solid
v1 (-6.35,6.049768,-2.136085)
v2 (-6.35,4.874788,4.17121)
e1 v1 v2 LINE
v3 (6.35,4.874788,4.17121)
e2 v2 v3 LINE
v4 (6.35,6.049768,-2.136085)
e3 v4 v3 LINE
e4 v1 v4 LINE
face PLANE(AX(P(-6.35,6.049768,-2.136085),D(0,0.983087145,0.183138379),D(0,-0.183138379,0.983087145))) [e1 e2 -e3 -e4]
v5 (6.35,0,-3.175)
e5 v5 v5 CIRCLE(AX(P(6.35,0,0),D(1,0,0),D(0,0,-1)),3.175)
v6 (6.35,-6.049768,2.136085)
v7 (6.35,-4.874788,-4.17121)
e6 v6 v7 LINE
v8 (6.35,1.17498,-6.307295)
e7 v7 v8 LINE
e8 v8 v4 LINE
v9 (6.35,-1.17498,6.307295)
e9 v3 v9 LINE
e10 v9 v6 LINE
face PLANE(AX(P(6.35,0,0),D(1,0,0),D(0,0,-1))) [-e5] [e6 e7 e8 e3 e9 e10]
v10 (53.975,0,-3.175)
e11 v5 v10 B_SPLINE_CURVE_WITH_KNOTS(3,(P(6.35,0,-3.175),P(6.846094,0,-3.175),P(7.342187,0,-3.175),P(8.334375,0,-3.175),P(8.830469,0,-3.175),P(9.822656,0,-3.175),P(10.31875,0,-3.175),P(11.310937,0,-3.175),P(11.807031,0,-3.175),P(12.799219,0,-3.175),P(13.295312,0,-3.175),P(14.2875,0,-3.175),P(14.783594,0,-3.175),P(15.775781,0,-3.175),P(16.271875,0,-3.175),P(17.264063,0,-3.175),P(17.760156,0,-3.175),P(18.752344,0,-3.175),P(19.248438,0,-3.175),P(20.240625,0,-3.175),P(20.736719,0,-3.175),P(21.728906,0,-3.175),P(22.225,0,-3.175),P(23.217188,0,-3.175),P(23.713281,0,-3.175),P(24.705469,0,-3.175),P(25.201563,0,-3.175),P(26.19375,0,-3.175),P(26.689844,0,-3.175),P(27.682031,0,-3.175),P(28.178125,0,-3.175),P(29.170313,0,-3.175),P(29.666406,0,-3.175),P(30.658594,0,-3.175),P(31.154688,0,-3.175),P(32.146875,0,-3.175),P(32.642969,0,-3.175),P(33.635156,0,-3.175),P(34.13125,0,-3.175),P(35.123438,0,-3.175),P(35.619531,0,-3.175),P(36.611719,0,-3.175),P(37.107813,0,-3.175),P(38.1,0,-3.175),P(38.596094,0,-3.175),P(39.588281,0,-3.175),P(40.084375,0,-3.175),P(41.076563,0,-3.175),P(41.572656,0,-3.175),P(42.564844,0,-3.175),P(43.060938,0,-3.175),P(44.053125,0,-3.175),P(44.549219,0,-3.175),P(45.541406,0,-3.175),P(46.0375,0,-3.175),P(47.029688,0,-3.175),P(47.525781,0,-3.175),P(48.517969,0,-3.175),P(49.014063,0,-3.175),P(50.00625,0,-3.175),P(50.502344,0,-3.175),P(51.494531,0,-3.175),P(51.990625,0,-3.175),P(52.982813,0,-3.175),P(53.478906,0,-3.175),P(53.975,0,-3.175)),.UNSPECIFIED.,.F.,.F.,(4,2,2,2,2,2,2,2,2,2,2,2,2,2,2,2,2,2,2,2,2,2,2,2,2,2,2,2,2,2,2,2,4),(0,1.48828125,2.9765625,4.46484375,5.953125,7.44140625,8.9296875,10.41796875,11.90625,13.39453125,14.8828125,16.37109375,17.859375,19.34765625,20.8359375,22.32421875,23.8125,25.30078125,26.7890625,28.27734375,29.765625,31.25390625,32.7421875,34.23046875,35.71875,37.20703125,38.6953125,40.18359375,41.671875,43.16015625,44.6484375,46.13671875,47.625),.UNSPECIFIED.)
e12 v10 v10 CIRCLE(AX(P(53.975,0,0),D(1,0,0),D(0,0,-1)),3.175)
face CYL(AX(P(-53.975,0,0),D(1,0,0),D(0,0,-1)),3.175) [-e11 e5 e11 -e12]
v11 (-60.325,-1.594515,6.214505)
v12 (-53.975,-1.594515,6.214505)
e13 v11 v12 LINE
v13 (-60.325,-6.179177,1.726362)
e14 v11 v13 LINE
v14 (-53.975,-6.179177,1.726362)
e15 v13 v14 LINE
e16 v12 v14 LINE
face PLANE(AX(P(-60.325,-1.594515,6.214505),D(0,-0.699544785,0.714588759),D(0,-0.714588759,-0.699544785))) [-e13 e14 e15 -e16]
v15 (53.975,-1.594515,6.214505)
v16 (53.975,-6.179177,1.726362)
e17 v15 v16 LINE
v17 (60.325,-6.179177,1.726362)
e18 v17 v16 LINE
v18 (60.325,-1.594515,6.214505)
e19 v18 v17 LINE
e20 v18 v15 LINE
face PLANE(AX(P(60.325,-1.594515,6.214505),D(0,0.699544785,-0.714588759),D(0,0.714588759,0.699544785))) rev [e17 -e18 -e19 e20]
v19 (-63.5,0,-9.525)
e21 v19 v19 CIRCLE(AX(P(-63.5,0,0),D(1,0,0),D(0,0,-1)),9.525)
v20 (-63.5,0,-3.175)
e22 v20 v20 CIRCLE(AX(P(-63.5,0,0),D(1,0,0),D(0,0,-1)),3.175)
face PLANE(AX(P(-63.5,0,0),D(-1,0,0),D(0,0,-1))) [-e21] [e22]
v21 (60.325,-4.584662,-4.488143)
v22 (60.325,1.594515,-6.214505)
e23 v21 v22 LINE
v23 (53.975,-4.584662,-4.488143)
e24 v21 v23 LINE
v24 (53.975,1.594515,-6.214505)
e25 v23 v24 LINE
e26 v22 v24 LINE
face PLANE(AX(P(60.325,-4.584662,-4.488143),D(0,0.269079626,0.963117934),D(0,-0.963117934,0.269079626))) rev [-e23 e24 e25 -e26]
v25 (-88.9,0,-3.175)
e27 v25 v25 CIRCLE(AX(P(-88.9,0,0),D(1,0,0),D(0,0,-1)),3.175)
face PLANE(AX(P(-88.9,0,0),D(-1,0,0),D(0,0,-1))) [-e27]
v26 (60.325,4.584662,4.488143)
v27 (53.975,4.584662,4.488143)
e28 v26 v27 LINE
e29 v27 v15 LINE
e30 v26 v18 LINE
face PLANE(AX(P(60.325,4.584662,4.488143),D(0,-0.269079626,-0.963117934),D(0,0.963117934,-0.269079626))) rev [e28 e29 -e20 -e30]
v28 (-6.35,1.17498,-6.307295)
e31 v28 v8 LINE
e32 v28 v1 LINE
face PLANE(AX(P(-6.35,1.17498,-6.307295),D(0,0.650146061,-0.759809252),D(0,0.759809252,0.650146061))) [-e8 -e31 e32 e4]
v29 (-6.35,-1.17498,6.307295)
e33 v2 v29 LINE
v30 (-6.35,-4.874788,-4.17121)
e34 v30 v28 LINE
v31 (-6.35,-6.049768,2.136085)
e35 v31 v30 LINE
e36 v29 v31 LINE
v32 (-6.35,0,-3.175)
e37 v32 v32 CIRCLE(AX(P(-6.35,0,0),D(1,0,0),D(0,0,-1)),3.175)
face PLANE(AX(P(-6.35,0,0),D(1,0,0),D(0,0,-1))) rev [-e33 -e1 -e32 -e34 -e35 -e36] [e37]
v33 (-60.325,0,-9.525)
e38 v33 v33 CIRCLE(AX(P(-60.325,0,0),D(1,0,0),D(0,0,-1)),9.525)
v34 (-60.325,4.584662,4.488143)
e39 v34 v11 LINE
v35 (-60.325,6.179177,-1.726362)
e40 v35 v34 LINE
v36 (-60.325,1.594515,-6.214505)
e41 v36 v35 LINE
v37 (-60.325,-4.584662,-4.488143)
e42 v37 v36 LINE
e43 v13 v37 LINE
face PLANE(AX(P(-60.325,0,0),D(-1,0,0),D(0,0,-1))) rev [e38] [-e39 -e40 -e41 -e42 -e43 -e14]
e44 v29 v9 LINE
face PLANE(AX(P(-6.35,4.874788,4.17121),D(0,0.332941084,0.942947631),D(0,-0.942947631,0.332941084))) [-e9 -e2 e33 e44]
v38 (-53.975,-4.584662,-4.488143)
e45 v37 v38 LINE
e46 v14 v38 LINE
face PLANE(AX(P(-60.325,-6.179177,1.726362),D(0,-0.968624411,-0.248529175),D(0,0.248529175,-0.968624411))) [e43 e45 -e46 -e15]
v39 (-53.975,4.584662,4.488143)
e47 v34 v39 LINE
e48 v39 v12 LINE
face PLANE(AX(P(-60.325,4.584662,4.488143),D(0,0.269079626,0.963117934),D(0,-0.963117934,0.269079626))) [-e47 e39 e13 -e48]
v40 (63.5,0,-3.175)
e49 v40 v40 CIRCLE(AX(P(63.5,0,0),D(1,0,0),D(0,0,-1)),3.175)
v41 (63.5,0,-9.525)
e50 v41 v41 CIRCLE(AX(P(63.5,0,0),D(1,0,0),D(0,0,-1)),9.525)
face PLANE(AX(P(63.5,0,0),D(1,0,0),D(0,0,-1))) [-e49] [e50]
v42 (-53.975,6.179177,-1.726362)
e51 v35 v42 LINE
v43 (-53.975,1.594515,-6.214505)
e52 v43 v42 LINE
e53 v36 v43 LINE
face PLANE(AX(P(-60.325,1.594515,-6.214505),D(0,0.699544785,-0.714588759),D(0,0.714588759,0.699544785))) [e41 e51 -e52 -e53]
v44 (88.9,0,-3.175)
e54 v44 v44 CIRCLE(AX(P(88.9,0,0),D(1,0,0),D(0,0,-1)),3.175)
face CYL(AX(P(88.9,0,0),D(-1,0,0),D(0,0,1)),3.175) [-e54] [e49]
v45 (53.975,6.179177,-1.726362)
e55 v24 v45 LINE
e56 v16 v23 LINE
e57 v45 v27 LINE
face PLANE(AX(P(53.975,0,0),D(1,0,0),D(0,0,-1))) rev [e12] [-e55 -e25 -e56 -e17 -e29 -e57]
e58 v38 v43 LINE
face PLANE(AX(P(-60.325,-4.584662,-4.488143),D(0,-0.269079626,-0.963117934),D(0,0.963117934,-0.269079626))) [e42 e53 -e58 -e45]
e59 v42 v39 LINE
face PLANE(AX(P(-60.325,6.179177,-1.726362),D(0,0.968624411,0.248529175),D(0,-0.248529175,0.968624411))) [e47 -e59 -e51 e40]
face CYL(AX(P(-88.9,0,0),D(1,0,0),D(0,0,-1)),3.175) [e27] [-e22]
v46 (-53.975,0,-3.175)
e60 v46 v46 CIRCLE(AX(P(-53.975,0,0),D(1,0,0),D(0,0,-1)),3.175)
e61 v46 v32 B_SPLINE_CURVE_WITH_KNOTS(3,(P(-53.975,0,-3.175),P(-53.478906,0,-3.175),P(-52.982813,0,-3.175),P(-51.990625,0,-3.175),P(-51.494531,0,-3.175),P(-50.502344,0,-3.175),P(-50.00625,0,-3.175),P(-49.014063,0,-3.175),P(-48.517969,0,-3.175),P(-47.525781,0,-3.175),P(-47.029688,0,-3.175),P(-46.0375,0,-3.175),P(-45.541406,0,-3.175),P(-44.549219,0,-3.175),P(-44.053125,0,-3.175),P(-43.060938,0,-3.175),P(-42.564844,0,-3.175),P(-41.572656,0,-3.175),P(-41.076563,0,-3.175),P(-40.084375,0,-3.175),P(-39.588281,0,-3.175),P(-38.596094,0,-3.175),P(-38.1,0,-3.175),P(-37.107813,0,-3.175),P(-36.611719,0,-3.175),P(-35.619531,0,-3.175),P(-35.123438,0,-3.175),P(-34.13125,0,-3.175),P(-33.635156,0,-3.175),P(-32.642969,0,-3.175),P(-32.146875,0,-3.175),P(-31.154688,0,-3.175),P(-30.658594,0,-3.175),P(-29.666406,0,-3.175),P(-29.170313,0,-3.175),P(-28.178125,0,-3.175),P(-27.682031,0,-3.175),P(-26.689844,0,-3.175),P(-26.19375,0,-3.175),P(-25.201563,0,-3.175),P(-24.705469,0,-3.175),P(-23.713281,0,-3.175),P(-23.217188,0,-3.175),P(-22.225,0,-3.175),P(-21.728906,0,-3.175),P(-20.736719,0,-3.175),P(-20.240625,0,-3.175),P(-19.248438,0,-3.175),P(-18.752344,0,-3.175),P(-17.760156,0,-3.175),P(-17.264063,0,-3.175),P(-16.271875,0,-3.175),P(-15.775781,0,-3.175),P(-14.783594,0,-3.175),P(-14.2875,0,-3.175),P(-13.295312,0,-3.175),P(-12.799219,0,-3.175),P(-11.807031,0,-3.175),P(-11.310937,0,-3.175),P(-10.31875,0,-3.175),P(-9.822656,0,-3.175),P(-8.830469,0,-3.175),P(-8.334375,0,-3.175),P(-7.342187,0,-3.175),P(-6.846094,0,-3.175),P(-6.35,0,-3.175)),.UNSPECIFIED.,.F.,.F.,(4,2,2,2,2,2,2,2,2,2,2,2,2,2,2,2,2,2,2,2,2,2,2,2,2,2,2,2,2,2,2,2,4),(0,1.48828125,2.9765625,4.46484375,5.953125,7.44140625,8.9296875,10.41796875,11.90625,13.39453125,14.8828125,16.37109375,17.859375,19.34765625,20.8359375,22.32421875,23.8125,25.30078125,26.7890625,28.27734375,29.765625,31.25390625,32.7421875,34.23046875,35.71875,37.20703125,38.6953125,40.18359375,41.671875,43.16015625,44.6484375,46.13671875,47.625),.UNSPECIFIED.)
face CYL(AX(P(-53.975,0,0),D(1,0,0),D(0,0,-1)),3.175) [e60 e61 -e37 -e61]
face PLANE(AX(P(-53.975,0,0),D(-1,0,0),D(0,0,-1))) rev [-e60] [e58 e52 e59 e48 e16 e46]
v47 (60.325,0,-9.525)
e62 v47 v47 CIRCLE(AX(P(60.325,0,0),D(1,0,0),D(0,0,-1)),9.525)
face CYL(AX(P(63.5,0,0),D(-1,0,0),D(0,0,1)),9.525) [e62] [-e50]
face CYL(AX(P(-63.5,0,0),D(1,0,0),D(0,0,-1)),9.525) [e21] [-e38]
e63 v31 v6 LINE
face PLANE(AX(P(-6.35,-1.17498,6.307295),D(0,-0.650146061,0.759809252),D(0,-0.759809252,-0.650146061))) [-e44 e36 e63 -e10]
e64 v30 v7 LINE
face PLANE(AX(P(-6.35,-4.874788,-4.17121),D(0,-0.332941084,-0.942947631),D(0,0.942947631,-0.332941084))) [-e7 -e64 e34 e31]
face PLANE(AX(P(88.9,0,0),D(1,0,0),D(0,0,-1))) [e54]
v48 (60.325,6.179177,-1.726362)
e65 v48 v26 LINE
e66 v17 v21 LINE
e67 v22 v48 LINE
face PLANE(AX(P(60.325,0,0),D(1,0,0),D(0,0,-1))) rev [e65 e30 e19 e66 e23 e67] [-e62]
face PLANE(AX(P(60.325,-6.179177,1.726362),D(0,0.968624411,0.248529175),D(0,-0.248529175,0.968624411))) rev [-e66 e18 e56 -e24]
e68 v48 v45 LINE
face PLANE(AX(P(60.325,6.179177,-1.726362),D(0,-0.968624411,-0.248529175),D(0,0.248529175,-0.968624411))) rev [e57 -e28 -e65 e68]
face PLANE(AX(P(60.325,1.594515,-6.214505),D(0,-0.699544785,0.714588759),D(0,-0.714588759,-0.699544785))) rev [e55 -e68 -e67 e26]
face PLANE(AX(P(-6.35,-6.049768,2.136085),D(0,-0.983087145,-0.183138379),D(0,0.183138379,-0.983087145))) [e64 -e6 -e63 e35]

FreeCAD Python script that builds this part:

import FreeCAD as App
import Part
import Sketcher
from FreeCAD import Vector
Q = App.Units.Quantity


def add_polygon(sketch, points):
    """Adds a closed chain of lines whose ends are joined by coincident constraints."""
    first, n = sketch.GeometryCount, len(points)
    for a, b in zip(points, points[1:] + points[:1]):
        sketch.addGeometry(Part.LineSegment(App.Vector(*a, 0), App.Vector(*b, 0)), False)
    for i in range(n):
        sketch.addConstraint(Sketcher.Constraint("Coincident", first + i, 2, first + (i + 1) % n, 1))

doc = App.newDocument("Part")
body = doc.addObject("PartDesign::Body", "Body")

# Sketch on YZ plane
sketch1 = doc.addObject("Sketcher::SketchObject", "Sketch")
body.addObject(sketch1)
sketch1.AttachmentSupport = (doc.YZ_Plane, [""])
sketch1.MapMode = "FlatFace"
add_polygon(sketch1, [(-5, -4), (1, -6), (6, -2), (5, 4), (-1, 6), (-6, 2)])  # lines 0-5
sketch1.addConstraint([
    Sketcher.Constraint("Symmetric", 0, 2, 3, 2, -1, 1),
    Sketcher.Constraint("Symmetric", 1, 2, 4, 2, -1, 1),
    Sketcher.Constraint("Symmetric", 2, 2, 5, 2, -1, 1),
    Sketcher.Constraint("Equal", 0, 1),
    Sketcher.Constraint("Equal", 1, 2),
    Sketcher.Constraint("DistanceX", -1, 1, 0, 2, Q("1.17498 mm")),
    Sketcher.Constraint("DistanceY", -1, 1, 2, 2, Q("4.17121 mm")),
    Sketcher.Constraint("DistanceY", 0, 2, 1, 2, Q("4.17121 mm")),
    Sketcher.Constraint("DistanceX", 2, 2, 1, 2, Q("1.17498 mm")),
])
pad1 = doc.addObject("PartDesign::Pad", "Pad")
body.addObject(pad1)
pad1.Profile = sketch1
pad1.Type = "TwoLengths"
pad1.Length = Q("0.25 in")
pad1.Length2 = Q("0.25 in")

# Sketch on YZ plane
sketch2 = doc.addObject("Sketcher::SketchObject", "Sketch001")
body.addObject(sketch2)
sketch2.AttachmentSupport = (doc.YZ_Plane, [""])
sketch2.MapMode = "FlatFace"
sketch2.AttachmentOffset = App.Placement(Vector(0, 0, 0.25 * 25.4), App.Rotation())
sketch2.addGeometry(Part.Circle(Vector(0, 0, 0), Vector(0, 0, 1), 3.2), False)
sketch2.addConstraint([
    Sketcher.Constraint("Coincident", 0, 3, -1, 1),
    Sketcher.Constraint("Diameter", 0, Q("0.25 in")),
])
pad2 = doc.addObject("PartDesign::Pad", "Pad001")
body.addObject(pad2)
pad2.Profile = sketch2
pad2.Type = "TwoLengths"
pad2.Length = Q("1.875 in")
pad2.Length2 = Q("2.375 in")

# Sketch on YZ plane
sketch3 = doc.addObject("Sketcher::SketchObject", "Sketch002")
body.addObject(sketch3)
sketch3.AttachmentSupport = (doc.YZ_Plane, [""])
sketch3.MapMode = "FlatFace"
sketch3.AttachmentOffset = App.Placement(Vector(0, 0, 2.125 * 25.4), App.Rotation())
add_polygon(sketch3, [(-5, -4), (2, -6), (6, -2), (5, 4), (-2, 6), (-6, 2)])  # lines 0-5
sketch3.addConstraint([
    Sketcher.Constraint("Symmetric", 0, 2, 3, 2, -1, 1),
    Sketcher.Constraint("Symmetric", 1, 2, 4, 2, -1, 1),
    Sketcher.Constraint("Symmetric", 2, 2, 5, 2, -1, 1),
    Sketcher.Constraint("Equal", 0, 1),
    Sketcher.Constraint("Equal", 1, 2),
    Sketcher.Constraint("DistanceY", 0, 2, 2, 2, Q("10.702648 mm")),
    Sketcher.Constraint("DistanceX", 3, 2, 1, 2, Q("7.773691 mm")),
    Sketcher.Constraint("DistanceX", 3, 2, 0, 2, Q("3.189029 mm")),
    Sketcher.Constraint("DistanceY", 0, 2, 3, 2, Q("12.42901 mm")),
])
pad3 = doc.addObject("PartDesign::Pad", "Pad002")
body.addObject(pad3)
pad3.Profile = sketch3
pad3.Length = Q("0.25 in")

# Sketch on YZ plane
sketch4 = doc.addObject("Sketcher::SketchObject", "Sketch003")
body.addObject(sketch4)
sketch4.AttachmentSupport = (doc.YZ_Plane, [""])
sketch4.MapMode = "FlatFace"
sketch4.AttachmentOffset = App.Placement(Vector(0, 0, 2.375 * 25.4), App.Rotation())
sketch4.addGeometry(Part.Circle(Vector(0, 0, 0), Vector(0, 0, 1), 10), False)
sketch4.addConstraint([
    Sketcher.Constraint("Coincident", 0, 3, -1, 1),
    Sketcher.Constraint("Diameter", 0, Q("0.75 in")),
])
pad4 = doc.addObject("PartDesign::Pad", "Pad003")
body.addObject(pad4)
pad4.Profile = sketch4
pad4.Length = Q("0.125 in")
doc.recompute()

mirrored = doc.addObject("PartDesign::Mirrored", "Mirrored")
body.addObject(mirrored)
mirrored.Originals = [pad3, pad4]
mirrored.MirrorPlane = (doc.YZ_Plane, [""])
body.Tip = mirrored

# Sketch on YZ plane
sketch5 = doc.addObject("Sketcher::SketchObject", "Sketch004")
body.addObject(sketch5)
sketch5.AttachmentSupport = (doc.YZ_Plane, [""])
sketch5.MapMode = "FlatFace"
sketch5.AttachmentOffset = App.Placement(Vector(0, 0, 2.5 * 25.4), App.Rotation())
sketch5.addGeometry(Part.Circle(Vector(0, 0, 0), Vector(0, 0, 1), 3.2), False)
sketch5.addConstraint([
    Sketcher.Constraint("Coincident", 0, 3, -1, 1),
    Sketcher.Constraint("Diameter", 0, Q("0.25 in")),
])
pad5 = doc.addObject("PartDesign::Pad", "Pad004")
body.addObject(pad5)
pad5.Profile = sketch5
pad5.Length = Q("1 in")
doc.recompute()

mirrored2 = doc.addObject("PartDesign::Mirrored", "Mirrored001")
body.addObject(mirrored2)
mirrored2.Originals = [pad5]
mirrored2.MirrorPlane = (doc.YZ_Plane, [""])
body.Tip = mirrored2

doc.recompute()
